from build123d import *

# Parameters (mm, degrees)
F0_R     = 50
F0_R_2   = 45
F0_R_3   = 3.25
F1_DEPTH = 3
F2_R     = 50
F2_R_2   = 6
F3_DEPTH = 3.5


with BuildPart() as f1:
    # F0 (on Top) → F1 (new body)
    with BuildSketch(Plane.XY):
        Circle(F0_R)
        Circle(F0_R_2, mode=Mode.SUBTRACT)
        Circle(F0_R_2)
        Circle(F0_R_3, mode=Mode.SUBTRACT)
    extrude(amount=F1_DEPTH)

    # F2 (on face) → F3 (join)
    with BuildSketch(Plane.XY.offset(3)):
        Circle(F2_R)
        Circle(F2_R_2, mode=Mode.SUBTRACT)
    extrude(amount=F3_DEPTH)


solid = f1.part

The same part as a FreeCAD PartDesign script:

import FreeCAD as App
import Part
import Sketcher

V = App.Vector
Q = App.Units.Quantity

doc = App.newDocument("Part")
body = doc.addObject("PartDesign::Body", "Body")

# Sketch on XY plane
sketch1 = body.newObject("Sketcher::SketchObject", "Sketch")
sketch1.AttachmentSupport = (doc.getObject("XY_Plane"), [""])
sketch1.MapMode = "FlatFace"
sketch1.addGeometry([
    Part.Circle(V(0, 0, 0), V(0, 0, 1), 50),
    Part.Circle(V(0, 0, 0), V(0, 0, 1), 3.25),
], False)
sketch1.addConstraint([
    Sketcher.Constraint("Coincident", 0, 3, -1, 1),
    Sketcher.Constraint("Coincident", 1, 3, -1, 1),
    Sketcher.Constraint("Diameter", 0, Q("100 mm")),
    Sketcher.Constraint("Diameter", 1, Q("6.5 mm")),
])
pad1 = body.newObject("PartDesign::Pad", "Pad")
pad1.Profile = sketch1
pad1.Length = 3

# Sketch on XY plane
sketch2 = body.newObject("Sketcher::SketchObject", "Sketch001")
sketch2.AttachmentSupport = (doc.getObject("XY_Plane"), [""])
sketch2.MapMode = "FlatFace"
sketch2.AttachmentOffset = App.Placement(V(0, 0, 3), App.Rotation())
sketch2.addGeometry([
    Part.Circle(V(0, 0, 0), V(0, 0, 1), 50),
    Part.Circle(V(0, 0, 0), V(0, 0, 1), 6),
], False)
sketch2.addConstraint([
    Sketcher.Constraint("Coincident", 0, 3, -1, 1),
    Sketcher.Constraint("Coincident", 1, 3, -1, 1),
    Sketcher.Constraint("Diameter", 0, Q("100 mm")),
    Sketcher.Constraint("Diameter", 1, Q("12 mm")),
])
pad2 = body.newObject("PartDesign::Pad", "Pad001")
pad2.Profile = sketch2
pad2.Length = 3.5

doc.recompute()
